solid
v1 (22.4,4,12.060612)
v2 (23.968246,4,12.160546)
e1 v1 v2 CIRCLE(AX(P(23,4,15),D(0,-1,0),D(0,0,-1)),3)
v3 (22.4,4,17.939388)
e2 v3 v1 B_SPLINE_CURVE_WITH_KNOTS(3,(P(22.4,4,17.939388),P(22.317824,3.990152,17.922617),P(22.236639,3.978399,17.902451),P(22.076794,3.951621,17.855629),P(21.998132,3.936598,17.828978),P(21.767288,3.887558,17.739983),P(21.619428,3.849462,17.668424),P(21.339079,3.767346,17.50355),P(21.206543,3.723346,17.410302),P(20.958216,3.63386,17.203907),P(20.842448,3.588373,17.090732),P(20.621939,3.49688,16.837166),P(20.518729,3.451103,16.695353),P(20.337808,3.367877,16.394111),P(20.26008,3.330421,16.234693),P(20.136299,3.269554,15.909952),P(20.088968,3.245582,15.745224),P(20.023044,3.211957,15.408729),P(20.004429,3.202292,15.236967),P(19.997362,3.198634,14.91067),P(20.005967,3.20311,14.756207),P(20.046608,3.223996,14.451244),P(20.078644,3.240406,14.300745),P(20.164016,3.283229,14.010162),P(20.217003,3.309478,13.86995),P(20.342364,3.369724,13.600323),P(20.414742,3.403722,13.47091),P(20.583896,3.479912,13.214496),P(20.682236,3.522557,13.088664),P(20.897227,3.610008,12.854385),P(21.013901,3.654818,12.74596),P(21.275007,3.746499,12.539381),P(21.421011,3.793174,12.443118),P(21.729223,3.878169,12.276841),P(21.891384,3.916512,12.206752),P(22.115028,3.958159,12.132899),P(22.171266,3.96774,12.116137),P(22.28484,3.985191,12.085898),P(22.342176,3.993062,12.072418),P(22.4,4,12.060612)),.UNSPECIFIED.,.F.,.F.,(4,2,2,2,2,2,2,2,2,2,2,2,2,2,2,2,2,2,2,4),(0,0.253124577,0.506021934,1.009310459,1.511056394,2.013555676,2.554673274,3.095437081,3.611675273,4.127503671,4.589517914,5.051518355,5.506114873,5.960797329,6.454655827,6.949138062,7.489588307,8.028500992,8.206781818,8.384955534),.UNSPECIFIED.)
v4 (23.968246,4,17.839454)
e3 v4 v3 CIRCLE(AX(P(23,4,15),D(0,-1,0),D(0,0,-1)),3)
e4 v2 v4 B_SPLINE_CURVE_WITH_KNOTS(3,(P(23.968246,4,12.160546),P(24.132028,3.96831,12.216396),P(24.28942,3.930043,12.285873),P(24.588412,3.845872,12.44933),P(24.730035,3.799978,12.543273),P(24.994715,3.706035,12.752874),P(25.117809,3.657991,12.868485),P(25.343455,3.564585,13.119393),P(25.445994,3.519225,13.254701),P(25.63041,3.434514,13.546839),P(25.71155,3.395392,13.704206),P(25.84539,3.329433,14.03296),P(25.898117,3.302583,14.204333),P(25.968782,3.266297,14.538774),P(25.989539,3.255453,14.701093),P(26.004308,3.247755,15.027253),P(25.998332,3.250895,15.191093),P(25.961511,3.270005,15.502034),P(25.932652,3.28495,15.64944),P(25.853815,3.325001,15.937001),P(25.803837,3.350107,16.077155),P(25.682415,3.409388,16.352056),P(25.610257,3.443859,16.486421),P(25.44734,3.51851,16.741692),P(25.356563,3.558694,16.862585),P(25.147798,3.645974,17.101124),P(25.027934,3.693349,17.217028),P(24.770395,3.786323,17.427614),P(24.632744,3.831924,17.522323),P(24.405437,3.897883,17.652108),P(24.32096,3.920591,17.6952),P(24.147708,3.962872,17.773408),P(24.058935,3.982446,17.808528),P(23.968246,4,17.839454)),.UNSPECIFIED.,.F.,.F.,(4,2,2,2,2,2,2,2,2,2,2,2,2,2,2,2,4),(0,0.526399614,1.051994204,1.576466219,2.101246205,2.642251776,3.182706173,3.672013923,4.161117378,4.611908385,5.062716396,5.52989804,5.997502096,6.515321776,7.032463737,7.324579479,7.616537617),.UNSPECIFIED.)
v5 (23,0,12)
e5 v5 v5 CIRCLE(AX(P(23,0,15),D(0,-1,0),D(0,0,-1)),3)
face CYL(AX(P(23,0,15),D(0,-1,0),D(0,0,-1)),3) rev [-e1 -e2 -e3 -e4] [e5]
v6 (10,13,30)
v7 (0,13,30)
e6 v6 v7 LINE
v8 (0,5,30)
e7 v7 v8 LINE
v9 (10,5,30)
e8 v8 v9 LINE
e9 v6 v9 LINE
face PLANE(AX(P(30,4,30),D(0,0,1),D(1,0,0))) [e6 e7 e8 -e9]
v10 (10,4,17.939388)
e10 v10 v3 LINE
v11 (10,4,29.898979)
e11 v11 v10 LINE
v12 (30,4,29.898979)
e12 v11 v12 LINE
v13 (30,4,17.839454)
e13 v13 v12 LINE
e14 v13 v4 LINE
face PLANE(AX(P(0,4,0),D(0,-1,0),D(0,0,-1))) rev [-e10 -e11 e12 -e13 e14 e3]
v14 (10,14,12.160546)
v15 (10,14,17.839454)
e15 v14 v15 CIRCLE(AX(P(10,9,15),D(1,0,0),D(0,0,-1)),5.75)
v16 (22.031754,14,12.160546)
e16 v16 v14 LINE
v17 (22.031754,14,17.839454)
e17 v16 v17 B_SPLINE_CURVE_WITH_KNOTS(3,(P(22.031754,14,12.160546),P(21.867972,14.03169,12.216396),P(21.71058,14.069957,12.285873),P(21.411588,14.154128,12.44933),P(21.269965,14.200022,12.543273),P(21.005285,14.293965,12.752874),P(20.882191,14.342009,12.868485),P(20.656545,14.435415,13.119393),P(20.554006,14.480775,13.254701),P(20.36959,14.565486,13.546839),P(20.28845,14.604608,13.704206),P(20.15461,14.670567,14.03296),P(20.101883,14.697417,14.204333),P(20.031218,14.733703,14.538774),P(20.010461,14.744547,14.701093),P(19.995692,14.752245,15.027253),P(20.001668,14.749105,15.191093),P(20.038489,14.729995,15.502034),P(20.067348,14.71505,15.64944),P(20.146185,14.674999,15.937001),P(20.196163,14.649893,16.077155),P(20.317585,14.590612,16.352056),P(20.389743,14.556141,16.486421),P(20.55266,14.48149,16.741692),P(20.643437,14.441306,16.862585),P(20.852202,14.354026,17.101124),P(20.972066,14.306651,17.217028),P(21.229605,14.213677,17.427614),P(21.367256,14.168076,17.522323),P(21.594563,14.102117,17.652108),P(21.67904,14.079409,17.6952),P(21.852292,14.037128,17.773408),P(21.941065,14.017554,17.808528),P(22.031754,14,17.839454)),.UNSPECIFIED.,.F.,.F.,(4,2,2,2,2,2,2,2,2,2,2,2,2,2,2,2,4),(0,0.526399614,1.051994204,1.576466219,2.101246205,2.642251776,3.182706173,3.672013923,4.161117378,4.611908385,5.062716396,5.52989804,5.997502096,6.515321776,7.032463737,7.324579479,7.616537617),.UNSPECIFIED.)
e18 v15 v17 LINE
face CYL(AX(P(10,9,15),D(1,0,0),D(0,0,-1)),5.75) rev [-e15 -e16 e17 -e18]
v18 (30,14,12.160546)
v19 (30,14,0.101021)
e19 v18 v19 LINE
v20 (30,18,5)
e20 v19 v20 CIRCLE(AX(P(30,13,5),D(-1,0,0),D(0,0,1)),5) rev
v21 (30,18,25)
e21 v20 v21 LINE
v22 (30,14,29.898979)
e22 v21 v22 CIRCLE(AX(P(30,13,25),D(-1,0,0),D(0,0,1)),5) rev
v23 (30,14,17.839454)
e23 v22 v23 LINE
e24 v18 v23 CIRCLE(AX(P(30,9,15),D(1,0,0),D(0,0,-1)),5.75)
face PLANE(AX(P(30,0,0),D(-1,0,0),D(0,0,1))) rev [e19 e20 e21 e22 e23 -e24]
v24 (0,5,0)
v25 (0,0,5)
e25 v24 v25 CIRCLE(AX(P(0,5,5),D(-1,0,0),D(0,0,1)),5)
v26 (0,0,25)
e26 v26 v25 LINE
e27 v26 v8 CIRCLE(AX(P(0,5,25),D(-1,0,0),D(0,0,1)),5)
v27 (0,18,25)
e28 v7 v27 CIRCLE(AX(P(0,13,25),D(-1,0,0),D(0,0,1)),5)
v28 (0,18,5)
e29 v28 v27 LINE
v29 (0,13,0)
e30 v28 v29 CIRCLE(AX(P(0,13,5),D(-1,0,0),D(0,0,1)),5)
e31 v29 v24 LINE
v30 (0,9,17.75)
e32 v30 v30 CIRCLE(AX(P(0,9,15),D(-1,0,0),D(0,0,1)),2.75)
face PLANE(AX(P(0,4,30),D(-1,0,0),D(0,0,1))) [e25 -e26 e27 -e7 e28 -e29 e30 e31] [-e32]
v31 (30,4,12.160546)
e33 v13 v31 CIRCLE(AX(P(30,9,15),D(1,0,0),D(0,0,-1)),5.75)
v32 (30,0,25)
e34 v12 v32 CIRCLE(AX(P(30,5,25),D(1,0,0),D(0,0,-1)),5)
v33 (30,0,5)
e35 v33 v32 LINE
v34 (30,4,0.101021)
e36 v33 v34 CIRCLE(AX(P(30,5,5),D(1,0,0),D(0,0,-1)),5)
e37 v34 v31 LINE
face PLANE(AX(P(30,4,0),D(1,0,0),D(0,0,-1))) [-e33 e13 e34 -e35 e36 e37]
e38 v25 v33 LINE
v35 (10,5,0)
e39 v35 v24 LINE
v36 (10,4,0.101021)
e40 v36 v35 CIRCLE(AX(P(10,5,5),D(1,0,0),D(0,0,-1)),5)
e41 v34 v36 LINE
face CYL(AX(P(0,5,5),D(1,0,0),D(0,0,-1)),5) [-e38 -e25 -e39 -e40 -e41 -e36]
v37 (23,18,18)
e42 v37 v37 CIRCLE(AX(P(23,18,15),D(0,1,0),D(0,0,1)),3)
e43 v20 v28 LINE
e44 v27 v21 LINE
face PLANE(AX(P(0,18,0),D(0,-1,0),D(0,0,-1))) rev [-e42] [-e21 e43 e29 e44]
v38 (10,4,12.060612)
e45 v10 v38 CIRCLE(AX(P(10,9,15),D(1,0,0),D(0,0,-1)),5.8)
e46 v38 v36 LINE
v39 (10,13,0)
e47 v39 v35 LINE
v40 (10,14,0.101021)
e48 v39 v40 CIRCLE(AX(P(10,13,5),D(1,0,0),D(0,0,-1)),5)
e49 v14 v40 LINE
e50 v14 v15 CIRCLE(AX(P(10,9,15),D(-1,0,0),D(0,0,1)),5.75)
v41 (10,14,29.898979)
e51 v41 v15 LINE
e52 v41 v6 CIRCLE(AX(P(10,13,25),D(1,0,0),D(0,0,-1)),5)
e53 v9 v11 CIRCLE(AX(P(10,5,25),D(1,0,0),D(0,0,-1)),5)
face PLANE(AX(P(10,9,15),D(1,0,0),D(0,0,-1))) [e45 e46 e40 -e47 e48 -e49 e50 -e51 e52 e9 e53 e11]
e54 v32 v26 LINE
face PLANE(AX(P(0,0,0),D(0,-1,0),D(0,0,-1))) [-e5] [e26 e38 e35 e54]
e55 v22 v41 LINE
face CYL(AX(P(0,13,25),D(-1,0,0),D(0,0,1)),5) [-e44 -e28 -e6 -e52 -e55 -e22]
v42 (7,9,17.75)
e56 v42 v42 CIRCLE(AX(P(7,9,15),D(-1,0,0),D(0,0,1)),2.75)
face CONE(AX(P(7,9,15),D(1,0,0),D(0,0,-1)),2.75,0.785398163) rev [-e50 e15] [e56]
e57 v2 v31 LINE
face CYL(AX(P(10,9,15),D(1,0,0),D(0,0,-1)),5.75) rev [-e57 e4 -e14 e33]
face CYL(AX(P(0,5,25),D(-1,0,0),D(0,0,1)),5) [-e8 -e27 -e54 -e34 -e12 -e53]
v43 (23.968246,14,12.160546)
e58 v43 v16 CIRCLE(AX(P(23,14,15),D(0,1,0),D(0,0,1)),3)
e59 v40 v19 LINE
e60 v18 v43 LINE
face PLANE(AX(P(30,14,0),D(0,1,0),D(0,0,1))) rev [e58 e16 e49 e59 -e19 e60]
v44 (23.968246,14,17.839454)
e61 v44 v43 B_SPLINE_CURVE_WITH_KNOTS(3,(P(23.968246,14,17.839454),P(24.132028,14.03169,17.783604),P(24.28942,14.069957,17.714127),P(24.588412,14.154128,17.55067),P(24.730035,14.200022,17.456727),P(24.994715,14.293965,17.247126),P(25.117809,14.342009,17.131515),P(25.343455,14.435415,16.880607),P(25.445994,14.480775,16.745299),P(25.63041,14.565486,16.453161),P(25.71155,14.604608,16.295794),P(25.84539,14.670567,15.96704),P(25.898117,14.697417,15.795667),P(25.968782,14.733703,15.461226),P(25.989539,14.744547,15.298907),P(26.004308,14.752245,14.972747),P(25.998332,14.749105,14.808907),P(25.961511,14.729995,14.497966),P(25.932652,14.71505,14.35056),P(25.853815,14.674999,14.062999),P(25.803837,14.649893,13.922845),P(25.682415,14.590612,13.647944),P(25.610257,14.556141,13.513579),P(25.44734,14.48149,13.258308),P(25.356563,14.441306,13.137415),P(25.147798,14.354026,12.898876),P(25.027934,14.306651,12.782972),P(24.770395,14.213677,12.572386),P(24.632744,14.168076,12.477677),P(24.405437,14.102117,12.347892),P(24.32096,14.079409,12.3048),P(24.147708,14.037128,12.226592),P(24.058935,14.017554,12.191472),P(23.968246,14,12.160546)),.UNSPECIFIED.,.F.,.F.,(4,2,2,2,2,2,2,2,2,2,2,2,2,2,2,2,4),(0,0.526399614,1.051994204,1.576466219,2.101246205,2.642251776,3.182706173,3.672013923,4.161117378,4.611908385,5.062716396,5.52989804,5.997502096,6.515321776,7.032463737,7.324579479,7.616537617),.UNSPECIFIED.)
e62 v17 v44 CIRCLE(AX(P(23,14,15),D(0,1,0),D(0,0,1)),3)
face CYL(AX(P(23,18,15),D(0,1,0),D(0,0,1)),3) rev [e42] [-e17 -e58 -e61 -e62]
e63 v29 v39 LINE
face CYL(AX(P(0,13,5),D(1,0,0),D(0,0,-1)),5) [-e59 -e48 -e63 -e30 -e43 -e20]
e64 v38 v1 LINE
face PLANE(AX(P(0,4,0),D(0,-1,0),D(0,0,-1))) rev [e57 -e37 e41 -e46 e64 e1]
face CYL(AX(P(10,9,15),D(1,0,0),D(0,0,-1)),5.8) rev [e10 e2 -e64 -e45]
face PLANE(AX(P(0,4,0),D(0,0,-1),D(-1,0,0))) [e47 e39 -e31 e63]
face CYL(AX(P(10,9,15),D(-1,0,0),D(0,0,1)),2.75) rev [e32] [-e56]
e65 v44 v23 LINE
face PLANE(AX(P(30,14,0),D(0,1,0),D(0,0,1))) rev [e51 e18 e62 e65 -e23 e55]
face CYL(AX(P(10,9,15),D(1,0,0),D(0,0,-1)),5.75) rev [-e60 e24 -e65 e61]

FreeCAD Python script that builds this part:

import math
import FreeCAD as App
import Part
import Sketcher
from FreeCAD import Vector
Q = App.Units.Quantity


def edges_at(feature, points):
    """Names of the edges that pass closest to the given points."""
    edges = feature.Shape.Edges
    near = lambda p: min(range(len(edges)), key=lambda i: edges[i].distToShape(Part.Vertex(*p))[0])
    return sorted({f"Edge{near(p) + 1}" for p in points})


def add_polygon(sketch, points):
    """Adds a closed chain of lines whose ends are joined by coincident constraints."""
    first, n = sketch.GeometryCount, len(points)
    for a, b in zip(points, points[1:] + points[:1]):
        sketch.addGeometry(Part.LineSegment(App.Vector(*a, 0), App.Vector(*b, 0)), False)
    for i in range(n):
        sketch.addConstraint(Sketcher.Constraint("Coincident", first + i, 2, first + (i + 1) % n, 1))

doc = App.newDocument("Part")
body = doc.addObject("PartDesign::Body", "Body")

# Sketch on XZ plane
sketch1 = doc.addObject("Sketcher::SketchObject", "Sketch")
body.addObject(sketch1)
sketch1.AttachmentSupport = (doc.XZ_Plane, [""])
sketch1.MapMode = "FlatFace"
add_polygon(sketch1, [(0, 30), (0, 0), (30, 0), (30, 30)])  # lines 0-3
sketch1.addConstraint(Sketcher.Constraint("Vertical", 0))
sketch1.addConstraint(Sketcher.Constraint("Horizontal", 1))
sketch1.addConstraint(Sketcher.Constraint("Vertical", 2))
sketch1.addConstraint(Sketcher.Constraint("Horizontal", 3))
sketch1.addConstraint(Sketcher.Constraint("Coincident", 0, 2, -1, 1))
sketch1.addConstraint(Sketcher.Constraint("Equal", 3, 0))
sketch1.addConstraint(Sketcher.Constraint("DistanceX", 1, 1, 1, 2, Q("30 mm")))
pad1 = doc.addObject("PartDesign::Pad", "Pad")
body.addObject(pad1)
pad1.Profile = sketch1
pad1.Length = 4
pad1.Reversed = True

# Sketch on YZ plane
sketch2 = doc.addObject("Sketcher::SketchObject", "Sketch001")
body.addObject(sketch2)
sketch2.AttachmentSupport = (doc.YZ_Plane, [""])
sketch2.MapMode = "FlatFace"
sketch2.AttachmentOffset = App.Placement(Vector(0, 0, 22.4), App.Rotation())
sketch2.addGeometry(Part.LineSegment(Vector(4, 12.060612, 0), Vector(4, 17.939388, 0)), False)
sketch2.addGeometry(Part.ArcOfCircle(Part.Circle(Vector(9, 15, 0), Vector(0, 0, 1), 5.8), math.radians(149.549686), math.radians(210.450314)), False)
sketch2.addConstraint(Sketcher.Constraint("Coincident", 0, 1, 1, 2))
sketch2.addConstraint(Sketcher.Constraint("Coincident", 1, 1, 0, 2))
sketch2.addConstraint(Sketcher.Constraint("Vertical", 0))
sketch2.addConstraint(Sketcher.Constraint("Radius", 1, Q("5.8 mm")))
sketch2.addConstraint(Sketcher.Constraint("DistanceX", -1, 1, 1, 3, Q("9 mm")))
sketch2.addConstraint(Sketcher.Constraint("DistanceY", -1, 1, 1, 3, Q("15 mm")))
sketch2.addConstraint(Sketcher.Constraint("DistanceX", -1, 1, 0, 1, Q("4 mm")))
pocket1 = doc.addObject("PartDesign::Pocket", "Pocket")
body.addObject(pocket1)
pocket1.Profile = sketch2
pocket1.Length = 12.4

# Sketch on XZ plane
sketch3 = doc.addObject("Sketcher::SketchObject", "Sketch002")
body.addObject(sketch3)
sketch3.AttachmentSupport = (doc.XZ_Plane, [""])
sketch3.MapMode = "FlatFace"
sketch3.AttachmentOffset = App.Placement(Vector(0, 0, -4), App.Rotation())
add_polygon(sketch3, [(10, 30), (10, 0), (0, 0), (0, 30)])  # lines 0-3
sketch3.addConstraint(Sketcher.Constraint("Vertical", 0))
sketch3.addConstraint(Sketcher.Constraint("Horizontal", 1))
sketch3.addConstraint(Sketcher.Constraint("Vertical", 2))
sketch3.addConstraint(Sketcher.Constraint("Horizontal", 3))
sketch3.addConstraint(Sketcher.Constraint("Coincident", 1, 2, -1, 1))
sketch3.addConstraint(Sketcher.Constraint("DistanceX", 1, 2, 1, 1, Q("10 mm")))
sketch3.addConstraint(Sketcher.Constraint("DistanceY", 0, 2, 0, 1, Q("30 mm")))
pad2 = doc.addObject("PartDesign::Pad", "Pad001")
body.addObject(pad2)
pad2.Profile = sketch3
pad2.Length = 14
pad2.Reversed = True

# Sketch on YZ plane
sketch4 = doc.addObject("Sketcher::SketchObject", "Sketch003")
body.addObject(sketch4)
sketch4.AttachmentSupport = (doc.YZ_Plane, [""])
sketch4.MapMode = "FlatFace"
sketch4.AttachmentOffset = App.Placement(Vector(0, 0, 10), App.Rotation())
add_polygon(sketch4, [(18, 30), (14, 30), (14, 0), (18, 0)])  # lines 0-3
sketch4.addConstraint(Sketcher.Constraint("Horizontal", 0))
sketch4.addConstraint(Sketcher.Constraint("Vertical", 1))
sketch4.addConstraint(Sketcher.Constraint("Horizontal", 2))
sketch4.addConstraint(Sketcher.Constraint("Vertical", 3))
sketch4.addConstraint(Sketcher.Constraint("PointOnObject", 1, 2, -1))
sketch4.addConstraint(Sketcher.Constraint("DistanceX", 0, 2, 0, 1, Q("4 mm")))
sketch4.addConstraint(Sketcher.Constraint("DistanceY", 1, 2, 1, 1, Q("30 mm")))
sketch4.addConstraint(Sketcher.Constraint("DistanceX", -1, 1, 0, 2, Q("14 mm")))
pad3 = doc.addObject("PartDesign::Pad", "Pad002")
body.addObject(pad3)
pad3.Profile = sketch4
pad3.Length = 20

# Sketch on YZ plane
sketch5 = doc.addObject("Sketcher::SketchObject", "Sketch004")
body.addObject(sketch5)
sketch5.AttachmentSupport = (doc.YZ_Plane, [""])
sketch5.MapMode = "FlatFace"
sketch5.AttachmentOffset = App.Placement(Vector(0, 0, 30), App.Rotation())
sketch5.addGeometry(Part.Circle(Vector(9, 15, 0), Vector(0, 0, 1), 5.75), False)
sketch5.addConstraint(Sketcher.Constraint("Diameter", 0, Q("11.5 mm")))
sketch5.addConstraint(Sketcher.Constraint("DistanceX", -1, 1, 0, 3, Q("9 mm")))
sketch5.addConstraint(Sketcher.Constraint("DistanceY", -1, 1, 0, 3, Q("15 mm")))
pocket2 = doc.addObject("PartDesign::Pocket", "Pocket001")
body.addObject(pocket2)
pocket2.Profile = sketch5
pocket2.Length = 20

# Sketch on XY plane
sketch6 = doc.addObject("Sketcher::SketchObject", "Sketch005")
body.addObject(sketch6)
sketch6.AttachmentSupport = (doc.XY_Plane, [""])
sketch6.MapMode = "FlatFace"
sketch6.AttachmentOffset = App.Placement(Vector(0, 0, 15), App.Rotation())
add_polygon(sketch6, [(10, 14.75), (10, 9), (0, 9), (0, 11.75), (7, 11.75)])  # lines 0-4
sketch6.addGeometry(Part.LineSegment(Vector(10, 9, 0), Vector(0, 9, 0)), True)  # axis
sketch6.addConstraint(Sketcher.Constraint("Vertical", 0))
sketch6.addConstraint(Sketcher.Constraint("Horizontal", 1))
sketch6.addConstraint(Sketcher.Constraint("Vertical", 2))
sketch6.addConstraint(Sketcher.Constraint("Horizontal", 3))
sketch6.addConstraint(Sketcher.Constraint("Horizontal", 5))
sketch6.addConstraint(Sketcher.Constraint("Coincident", 5, 1, 0, 2))
sketch6.addConstraint(Sketcher.Constraint("PointOnObject", 1, 2, -2))
sketch6.addConstraint(Sketcher.Constraint("PointOnObject", 5, 2, -2))
sketch6.addConstraint(Sketcher.Constraint("DistanceX", 1, 2, 1, 1, Q("10 mm")))
sketch6.addConstraint(Sketcher.Constraint("DistanceX", 3, 1, 3, 2, Q("7 mm")))
sketch6.addConstraint(Sketcher.Constraint("Angle", 4, Q("45 deg")))
sketch6.addConstraint(Sketcher.Constraint("DistanceY", -1, 1, 0, 2, Q("9 mm")))
sketch6.addConstraint(Sketcher.Constraint("DistanceY", 0, 2, 0, 1, Q("5.75 mm")))
groove = doc.addObject("PartDesign::Groove", "Groove")
body.addObject(groove)
groove.Profile = sketch6
groove.ReferenceAxis = (sketch6, ["Axis0"])
groove.Angle = 360

# Sketch on XZ plane
sketch7 = doc.addObject("Sketcher::SketchObject", "Sketch006")
body.addObject(sketch7)
sketch7.AttachmentSupport = (doc.XZ_Plane, [""])
sketch7.MapMode = "FlatFace"
sketch7.AttachmentOffset = App.Placement(Vector(0, 0, -18), App.Rotation())
sketch7.addGeometry(Part.Circle(Vector(23, 15, 0), Vector(0, 0, 1), 3), False)
sketch7.addConstraint(Sketcher.Constraint("Diameter", 0, Q("6 mm")))
sketch7.addConstraint(Sketcher.Constraint("DistanceX", -1, 1, 0, 3, Q("23 mm")))
sketch7.addConstraint(Sketcher.Constraint("DistanceY", -1, 1, 0, 3, Q("15 mm")))
pocket3 = doc.addObject("PartDesign::Pocket", "Pocket002")
body.addObject(pocket3)
pocket3.Profile = sketch7
pocket3.Length = 4
pocket3.Reversed = True

# Sketch on XZ plane
sketch8 = doc.addObject("Sketcher::SketchObject", "Sketch007")
body.addObject(sketch8)
sketch8.AttachmentSupport = (doc.XZ_Plane, [""])
sketch8.MapMode = "FlatFace"
sketch8.addGeometry(Part.Circle(Vector(23, 15, 0), Vector(0, 0, 1), 3), False)
sketch8.addConstraint(Sketcher.Constraint("Diameter", 0, Q("6 mm")))
sketch8.addConstraint(Sketcher.Constraint("DistanceX", -1, 1, 0, 3, Q("23 mm")))
sketch8.addConstraint(Sketcher.Constraint("DistanceY", -1, 1, 0, 3, Q("15 mm")))
doc.recompute()
hole = doc.addObject("PartDesign::Hole", "Hole")
body.addObject(hole)
hole.Profile = sketch8
hole.ThreadType = "None"
hole.Diameter = 6
hole.DepthType = "Dimension"
hole.Depth = 18
hole.DrillPoint = "Flat"
doc.recompute()

fillet = doc.addObject("PartDesign::Fillet", "Fillet")
body.addObject(fillet)
fillet.Base = (hole, edges_at(hole, [
    (15, 18, 0),
    (15, 0, 0),
    (15, 0, 30),
    (15, 18, 30),
]))
fillet.Radius = 5

doc.recompute()
